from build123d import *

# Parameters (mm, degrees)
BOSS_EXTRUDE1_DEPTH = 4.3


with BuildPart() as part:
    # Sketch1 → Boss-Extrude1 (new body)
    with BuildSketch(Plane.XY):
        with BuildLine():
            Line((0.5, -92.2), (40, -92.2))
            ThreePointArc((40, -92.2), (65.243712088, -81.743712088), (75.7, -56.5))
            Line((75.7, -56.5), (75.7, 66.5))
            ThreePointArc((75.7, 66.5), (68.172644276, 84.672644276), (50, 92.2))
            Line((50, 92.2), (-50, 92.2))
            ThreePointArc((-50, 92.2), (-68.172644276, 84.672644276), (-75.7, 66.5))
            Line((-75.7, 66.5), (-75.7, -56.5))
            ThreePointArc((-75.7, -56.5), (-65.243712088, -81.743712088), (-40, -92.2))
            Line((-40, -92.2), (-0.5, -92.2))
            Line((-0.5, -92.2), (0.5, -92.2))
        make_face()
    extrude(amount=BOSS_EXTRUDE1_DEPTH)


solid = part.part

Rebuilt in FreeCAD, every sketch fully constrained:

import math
import FreeCAD as App
import Part
import Sketcher
Q = App.Units.Quantity

doc = App.newDocument("Part")
params = doc.addObject("Spreadsheet::Sheet", "Params")
for row, (alias, value) in enumerate([
    ("sketch1_radius", "35.7 mm"),
    ("sketch1_radius2", "25.7 mm"),
    ("sketch1_width", "100 mm"),
    ("sketch1_height", "123 mm"),
    ("pad1_length", "4.3 mm"),
], start=1):
    params.set(f"A{row}", alias)
    params.set(f"B{row}", "=" + value)
    params.setAlias(f"B{row}", alias)

body = doc.addObject("PartDesign::Body", "Body")

sketch1 = body.newObject("Sketcher::SketchObject", "Sketch")
sketch1.AttachmentSupport = (doc.getObject("XY_Plane"), [""])
sketch1.MapMode = "FlatFace"
sketch1.addGeometry(Part.ArcOfCircle(Part.Circle(App.Vector(40, -56.5, 0), App.Vector(0, 0, 1), 35.7), math.radians(-90), math.radians(0)), False)
sketch1.addGeometry(Part.LineSegment(App.Vector(75.7, -56.5, 0), App.Vector(75.7, 66.5, 0)), False)
sketch1.addGeometry(Part.ArcOfCircle(Part.Circle(App.Vector(50, 66.5, 0), App.Vector(0, 0, 1), 25.7), math.radians(0), math.radians(90)), False)
sketch1.addGeometry(Part.LineSegment(App.Vector(50, 92.2, 0), App.Vector(-50, 92.2, 0)), False)
sketch1.addGeometry(Part.ArcOfCircle(Part.Circle(App.Vector(-50, 66.5, 0), App.Vector(0, 0, 1), 25.7), math.radians(90), math.radians(180)), False)
sketch1.addGeometry(Part.LineSegment(App.Vector(-75.7, 66.5, 0), App.Vector(-75.7, -56.5, 0)), False)
sketch1.addGeometry(Part.ArcOfCircle(Part.Circle(App.Vector(-40, -56.5, 0), App.Vector(0, 0, 1), 35.7), math.radians(-180), math.radians(-90)), False)
sketch1.addGeometry(Part.LineSegment(App.Vector(-40, -92.2, 0), App.Vector(40, -92.2, 0)), False)
sketch1.addConstraint(Sketcher.Constraint("Tangent", 0, 2, 1, 1))
sketch1.addConstraint(Sketcher.Constraint("Tangent", 1, 2, 2, 1))
sketch1.addConstraint(Sketcher.Constraint("Tangent", 2, 2, 3, 1))
sketch1.addConstraint(Sketcher.Constraint("Tangent", 3, 2, 4, 1))
sketch1.addConstraint(Sketcher.Constraint("Tangent", 4, 2, 5, 1))
sketch1.addConstraint(Sketcher.Constraint("Tangent", 5, 2, 6, 1))
sketch1.addConstraint(Sketcher.Constraint("Tangent", 6, 2, 7, 1))
sketch1.addConstraint(Sketcher.Constraint("Tangent", 7, 2, 0, 1))
sketch1.addConstraint(Sketcher.Constraint("Vertical", 1))
sketch1.addConstraint(Sketcher.Constraint("Horizontal", 3))
sketch1.addConstraint(Sketcher.Constraint("Vertical", 5))
sketch1.addConstraint(Sketcher.Constraint("Horizontal", 7))
sketch1.addConstraint(Sketcher.Constraint("Equal", 2, 4))
sketch1.addConstraint(Sketcher.Constraint("Equal", 0, 6))
sketch1.addConstraint(Sketcher.Constraint("Radius", 0, Q("35.7 mm")))
sketch1.addConstraint(Sketcher.Constraint("Radius", 2, Q("25.7 mm")))
sketch1.addConstraint(Sketcher.Constraint("DistanceX", 3, 2, 3, 1, Q("100 mm")))
sketch1.addConstraint(Sketcher.Constraint("DistanceY", 1, 1, 1, 2, Q("123 mm")))
sketch1.addConstraint(Sketcher.Constraint("DistanceX", -1, 1, 0, 3, Q("40 mm")))
sketch1.addConstraint(Sketcher.Constraint("DistanceY", 0, 3, -1, 1, Q("56.5 mm")))
sketch1.setExpression("Constraints[14]", "Params.sketch1_radius")
sketch1.setExpression("Constraints[15]", "Params.sketch1_radius2")
sketch1.setExpression("Constraints[16]", "Params.sketch1_width")
sketch1.setExpression("Constraints[17]", "Params.sketch1_height")
pad1 = body.newObject("PartDesign::Pad", "Pad")
pad1.Profile = sketch1
pad1.setExpression("Length", "Params.pad1_length")

doc.recompute()
